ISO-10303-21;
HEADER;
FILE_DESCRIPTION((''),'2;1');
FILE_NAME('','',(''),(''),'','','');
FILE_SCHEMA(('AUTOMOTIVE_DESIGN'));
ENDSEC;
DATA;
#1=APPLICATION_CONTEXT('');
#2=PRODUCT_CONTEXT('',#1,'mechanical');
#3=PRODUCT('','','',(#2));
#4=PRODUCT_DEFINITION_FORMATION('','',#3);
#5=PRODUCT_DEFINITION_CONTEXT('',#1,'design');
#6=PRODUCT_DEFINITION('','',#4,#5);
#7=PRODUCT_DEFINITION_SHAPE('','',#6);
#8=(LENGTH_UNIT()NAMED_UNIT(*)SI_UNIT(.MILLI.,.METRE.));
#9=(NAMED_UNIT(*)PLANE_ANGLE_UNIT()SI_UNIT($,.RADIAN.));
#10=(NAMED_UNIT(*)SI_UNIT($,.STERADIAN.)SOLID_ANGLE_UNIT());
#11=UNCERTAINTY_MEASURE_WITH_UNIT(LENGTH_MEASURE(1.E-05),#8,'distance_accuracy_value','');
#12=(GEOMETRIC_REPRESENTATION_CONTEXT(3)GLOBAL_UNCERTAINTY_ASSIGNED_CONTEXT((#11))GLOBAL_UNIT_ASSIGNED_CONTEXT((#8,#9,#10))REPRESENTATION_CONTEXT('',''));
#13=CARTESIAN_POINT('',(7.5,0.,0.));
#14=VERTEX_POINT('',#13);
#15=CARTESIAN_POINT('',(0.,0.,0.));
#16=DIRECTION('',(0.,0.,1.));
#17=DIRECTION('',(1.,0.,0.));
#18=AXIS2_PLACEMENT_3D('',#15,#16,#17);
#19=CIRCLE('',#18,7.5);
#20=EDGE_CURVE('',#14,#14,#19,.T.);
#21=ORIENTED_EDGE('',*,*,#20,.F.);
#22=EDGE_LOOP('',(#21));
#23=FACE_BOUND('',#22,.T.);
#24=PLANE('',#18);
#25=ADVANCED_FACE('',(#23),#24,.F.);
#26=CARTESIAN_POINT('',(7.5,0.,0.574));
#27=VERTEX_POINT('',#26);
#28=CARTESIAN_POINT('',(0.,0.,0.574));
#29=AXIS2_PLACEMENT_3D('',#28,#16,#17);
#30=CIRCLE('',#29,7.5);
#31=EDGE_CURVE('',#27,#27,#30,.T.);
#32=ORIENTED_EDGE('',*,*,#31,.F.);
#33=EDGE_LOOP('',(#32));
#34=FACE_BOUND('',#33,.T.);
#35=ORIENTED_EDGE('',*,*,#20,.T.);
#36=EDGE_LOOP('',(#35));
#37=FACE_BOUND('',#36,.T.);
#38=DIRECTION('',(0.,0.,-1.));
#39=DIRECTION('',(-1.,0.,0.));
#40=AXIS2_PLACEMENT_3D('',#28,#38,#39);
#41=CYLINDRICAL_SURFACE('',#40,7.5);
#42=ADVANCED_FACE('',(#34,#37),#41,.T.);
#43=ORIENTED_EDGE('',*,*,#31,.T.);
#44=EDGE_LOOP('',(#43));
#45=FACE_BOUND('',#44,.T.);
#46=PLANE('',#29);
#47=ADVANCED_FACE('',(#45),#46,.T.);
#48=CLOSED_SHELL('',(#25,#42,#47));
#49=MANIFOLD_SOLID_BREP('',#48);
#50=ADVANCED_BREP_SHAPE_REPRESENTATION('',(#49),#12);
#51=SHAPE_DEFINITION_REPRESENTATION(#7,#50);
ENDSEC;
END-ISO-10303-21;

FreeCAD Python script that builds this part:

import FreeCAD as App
import Part
import Sketcher
from FreeCAD import Vector
Q = App.Units.Quantity

doc = App.newDocument("Part")
body = doc.addObject("PartDesign::Body", "Body")

# Sketch on XY plane
sketch1 = body.newObject("Sketcher::SketchObject", "Sketch")
sketch1.AttachmentSupport = (doc.getObject("XY_Plane"), [""])
sketch1.MapMode = "FlatFace"
sketch1.addGeometry(Part.Circle(Vector(0, 0, 0), Vector(0, 0, 1), 8), False)
sketch1.addConstraint([
    Sketcher.Constraint("Coincident", 0, 3, -1, 1),
    Sketcher.Constraint("Diameter", 0, Q("15 mm")),
])
pad1 = body.newObject("PartDesign::Pad", "Pad")
pad1.Profile = sketch1
pad1.Length = 0.574

doc.recompute()
